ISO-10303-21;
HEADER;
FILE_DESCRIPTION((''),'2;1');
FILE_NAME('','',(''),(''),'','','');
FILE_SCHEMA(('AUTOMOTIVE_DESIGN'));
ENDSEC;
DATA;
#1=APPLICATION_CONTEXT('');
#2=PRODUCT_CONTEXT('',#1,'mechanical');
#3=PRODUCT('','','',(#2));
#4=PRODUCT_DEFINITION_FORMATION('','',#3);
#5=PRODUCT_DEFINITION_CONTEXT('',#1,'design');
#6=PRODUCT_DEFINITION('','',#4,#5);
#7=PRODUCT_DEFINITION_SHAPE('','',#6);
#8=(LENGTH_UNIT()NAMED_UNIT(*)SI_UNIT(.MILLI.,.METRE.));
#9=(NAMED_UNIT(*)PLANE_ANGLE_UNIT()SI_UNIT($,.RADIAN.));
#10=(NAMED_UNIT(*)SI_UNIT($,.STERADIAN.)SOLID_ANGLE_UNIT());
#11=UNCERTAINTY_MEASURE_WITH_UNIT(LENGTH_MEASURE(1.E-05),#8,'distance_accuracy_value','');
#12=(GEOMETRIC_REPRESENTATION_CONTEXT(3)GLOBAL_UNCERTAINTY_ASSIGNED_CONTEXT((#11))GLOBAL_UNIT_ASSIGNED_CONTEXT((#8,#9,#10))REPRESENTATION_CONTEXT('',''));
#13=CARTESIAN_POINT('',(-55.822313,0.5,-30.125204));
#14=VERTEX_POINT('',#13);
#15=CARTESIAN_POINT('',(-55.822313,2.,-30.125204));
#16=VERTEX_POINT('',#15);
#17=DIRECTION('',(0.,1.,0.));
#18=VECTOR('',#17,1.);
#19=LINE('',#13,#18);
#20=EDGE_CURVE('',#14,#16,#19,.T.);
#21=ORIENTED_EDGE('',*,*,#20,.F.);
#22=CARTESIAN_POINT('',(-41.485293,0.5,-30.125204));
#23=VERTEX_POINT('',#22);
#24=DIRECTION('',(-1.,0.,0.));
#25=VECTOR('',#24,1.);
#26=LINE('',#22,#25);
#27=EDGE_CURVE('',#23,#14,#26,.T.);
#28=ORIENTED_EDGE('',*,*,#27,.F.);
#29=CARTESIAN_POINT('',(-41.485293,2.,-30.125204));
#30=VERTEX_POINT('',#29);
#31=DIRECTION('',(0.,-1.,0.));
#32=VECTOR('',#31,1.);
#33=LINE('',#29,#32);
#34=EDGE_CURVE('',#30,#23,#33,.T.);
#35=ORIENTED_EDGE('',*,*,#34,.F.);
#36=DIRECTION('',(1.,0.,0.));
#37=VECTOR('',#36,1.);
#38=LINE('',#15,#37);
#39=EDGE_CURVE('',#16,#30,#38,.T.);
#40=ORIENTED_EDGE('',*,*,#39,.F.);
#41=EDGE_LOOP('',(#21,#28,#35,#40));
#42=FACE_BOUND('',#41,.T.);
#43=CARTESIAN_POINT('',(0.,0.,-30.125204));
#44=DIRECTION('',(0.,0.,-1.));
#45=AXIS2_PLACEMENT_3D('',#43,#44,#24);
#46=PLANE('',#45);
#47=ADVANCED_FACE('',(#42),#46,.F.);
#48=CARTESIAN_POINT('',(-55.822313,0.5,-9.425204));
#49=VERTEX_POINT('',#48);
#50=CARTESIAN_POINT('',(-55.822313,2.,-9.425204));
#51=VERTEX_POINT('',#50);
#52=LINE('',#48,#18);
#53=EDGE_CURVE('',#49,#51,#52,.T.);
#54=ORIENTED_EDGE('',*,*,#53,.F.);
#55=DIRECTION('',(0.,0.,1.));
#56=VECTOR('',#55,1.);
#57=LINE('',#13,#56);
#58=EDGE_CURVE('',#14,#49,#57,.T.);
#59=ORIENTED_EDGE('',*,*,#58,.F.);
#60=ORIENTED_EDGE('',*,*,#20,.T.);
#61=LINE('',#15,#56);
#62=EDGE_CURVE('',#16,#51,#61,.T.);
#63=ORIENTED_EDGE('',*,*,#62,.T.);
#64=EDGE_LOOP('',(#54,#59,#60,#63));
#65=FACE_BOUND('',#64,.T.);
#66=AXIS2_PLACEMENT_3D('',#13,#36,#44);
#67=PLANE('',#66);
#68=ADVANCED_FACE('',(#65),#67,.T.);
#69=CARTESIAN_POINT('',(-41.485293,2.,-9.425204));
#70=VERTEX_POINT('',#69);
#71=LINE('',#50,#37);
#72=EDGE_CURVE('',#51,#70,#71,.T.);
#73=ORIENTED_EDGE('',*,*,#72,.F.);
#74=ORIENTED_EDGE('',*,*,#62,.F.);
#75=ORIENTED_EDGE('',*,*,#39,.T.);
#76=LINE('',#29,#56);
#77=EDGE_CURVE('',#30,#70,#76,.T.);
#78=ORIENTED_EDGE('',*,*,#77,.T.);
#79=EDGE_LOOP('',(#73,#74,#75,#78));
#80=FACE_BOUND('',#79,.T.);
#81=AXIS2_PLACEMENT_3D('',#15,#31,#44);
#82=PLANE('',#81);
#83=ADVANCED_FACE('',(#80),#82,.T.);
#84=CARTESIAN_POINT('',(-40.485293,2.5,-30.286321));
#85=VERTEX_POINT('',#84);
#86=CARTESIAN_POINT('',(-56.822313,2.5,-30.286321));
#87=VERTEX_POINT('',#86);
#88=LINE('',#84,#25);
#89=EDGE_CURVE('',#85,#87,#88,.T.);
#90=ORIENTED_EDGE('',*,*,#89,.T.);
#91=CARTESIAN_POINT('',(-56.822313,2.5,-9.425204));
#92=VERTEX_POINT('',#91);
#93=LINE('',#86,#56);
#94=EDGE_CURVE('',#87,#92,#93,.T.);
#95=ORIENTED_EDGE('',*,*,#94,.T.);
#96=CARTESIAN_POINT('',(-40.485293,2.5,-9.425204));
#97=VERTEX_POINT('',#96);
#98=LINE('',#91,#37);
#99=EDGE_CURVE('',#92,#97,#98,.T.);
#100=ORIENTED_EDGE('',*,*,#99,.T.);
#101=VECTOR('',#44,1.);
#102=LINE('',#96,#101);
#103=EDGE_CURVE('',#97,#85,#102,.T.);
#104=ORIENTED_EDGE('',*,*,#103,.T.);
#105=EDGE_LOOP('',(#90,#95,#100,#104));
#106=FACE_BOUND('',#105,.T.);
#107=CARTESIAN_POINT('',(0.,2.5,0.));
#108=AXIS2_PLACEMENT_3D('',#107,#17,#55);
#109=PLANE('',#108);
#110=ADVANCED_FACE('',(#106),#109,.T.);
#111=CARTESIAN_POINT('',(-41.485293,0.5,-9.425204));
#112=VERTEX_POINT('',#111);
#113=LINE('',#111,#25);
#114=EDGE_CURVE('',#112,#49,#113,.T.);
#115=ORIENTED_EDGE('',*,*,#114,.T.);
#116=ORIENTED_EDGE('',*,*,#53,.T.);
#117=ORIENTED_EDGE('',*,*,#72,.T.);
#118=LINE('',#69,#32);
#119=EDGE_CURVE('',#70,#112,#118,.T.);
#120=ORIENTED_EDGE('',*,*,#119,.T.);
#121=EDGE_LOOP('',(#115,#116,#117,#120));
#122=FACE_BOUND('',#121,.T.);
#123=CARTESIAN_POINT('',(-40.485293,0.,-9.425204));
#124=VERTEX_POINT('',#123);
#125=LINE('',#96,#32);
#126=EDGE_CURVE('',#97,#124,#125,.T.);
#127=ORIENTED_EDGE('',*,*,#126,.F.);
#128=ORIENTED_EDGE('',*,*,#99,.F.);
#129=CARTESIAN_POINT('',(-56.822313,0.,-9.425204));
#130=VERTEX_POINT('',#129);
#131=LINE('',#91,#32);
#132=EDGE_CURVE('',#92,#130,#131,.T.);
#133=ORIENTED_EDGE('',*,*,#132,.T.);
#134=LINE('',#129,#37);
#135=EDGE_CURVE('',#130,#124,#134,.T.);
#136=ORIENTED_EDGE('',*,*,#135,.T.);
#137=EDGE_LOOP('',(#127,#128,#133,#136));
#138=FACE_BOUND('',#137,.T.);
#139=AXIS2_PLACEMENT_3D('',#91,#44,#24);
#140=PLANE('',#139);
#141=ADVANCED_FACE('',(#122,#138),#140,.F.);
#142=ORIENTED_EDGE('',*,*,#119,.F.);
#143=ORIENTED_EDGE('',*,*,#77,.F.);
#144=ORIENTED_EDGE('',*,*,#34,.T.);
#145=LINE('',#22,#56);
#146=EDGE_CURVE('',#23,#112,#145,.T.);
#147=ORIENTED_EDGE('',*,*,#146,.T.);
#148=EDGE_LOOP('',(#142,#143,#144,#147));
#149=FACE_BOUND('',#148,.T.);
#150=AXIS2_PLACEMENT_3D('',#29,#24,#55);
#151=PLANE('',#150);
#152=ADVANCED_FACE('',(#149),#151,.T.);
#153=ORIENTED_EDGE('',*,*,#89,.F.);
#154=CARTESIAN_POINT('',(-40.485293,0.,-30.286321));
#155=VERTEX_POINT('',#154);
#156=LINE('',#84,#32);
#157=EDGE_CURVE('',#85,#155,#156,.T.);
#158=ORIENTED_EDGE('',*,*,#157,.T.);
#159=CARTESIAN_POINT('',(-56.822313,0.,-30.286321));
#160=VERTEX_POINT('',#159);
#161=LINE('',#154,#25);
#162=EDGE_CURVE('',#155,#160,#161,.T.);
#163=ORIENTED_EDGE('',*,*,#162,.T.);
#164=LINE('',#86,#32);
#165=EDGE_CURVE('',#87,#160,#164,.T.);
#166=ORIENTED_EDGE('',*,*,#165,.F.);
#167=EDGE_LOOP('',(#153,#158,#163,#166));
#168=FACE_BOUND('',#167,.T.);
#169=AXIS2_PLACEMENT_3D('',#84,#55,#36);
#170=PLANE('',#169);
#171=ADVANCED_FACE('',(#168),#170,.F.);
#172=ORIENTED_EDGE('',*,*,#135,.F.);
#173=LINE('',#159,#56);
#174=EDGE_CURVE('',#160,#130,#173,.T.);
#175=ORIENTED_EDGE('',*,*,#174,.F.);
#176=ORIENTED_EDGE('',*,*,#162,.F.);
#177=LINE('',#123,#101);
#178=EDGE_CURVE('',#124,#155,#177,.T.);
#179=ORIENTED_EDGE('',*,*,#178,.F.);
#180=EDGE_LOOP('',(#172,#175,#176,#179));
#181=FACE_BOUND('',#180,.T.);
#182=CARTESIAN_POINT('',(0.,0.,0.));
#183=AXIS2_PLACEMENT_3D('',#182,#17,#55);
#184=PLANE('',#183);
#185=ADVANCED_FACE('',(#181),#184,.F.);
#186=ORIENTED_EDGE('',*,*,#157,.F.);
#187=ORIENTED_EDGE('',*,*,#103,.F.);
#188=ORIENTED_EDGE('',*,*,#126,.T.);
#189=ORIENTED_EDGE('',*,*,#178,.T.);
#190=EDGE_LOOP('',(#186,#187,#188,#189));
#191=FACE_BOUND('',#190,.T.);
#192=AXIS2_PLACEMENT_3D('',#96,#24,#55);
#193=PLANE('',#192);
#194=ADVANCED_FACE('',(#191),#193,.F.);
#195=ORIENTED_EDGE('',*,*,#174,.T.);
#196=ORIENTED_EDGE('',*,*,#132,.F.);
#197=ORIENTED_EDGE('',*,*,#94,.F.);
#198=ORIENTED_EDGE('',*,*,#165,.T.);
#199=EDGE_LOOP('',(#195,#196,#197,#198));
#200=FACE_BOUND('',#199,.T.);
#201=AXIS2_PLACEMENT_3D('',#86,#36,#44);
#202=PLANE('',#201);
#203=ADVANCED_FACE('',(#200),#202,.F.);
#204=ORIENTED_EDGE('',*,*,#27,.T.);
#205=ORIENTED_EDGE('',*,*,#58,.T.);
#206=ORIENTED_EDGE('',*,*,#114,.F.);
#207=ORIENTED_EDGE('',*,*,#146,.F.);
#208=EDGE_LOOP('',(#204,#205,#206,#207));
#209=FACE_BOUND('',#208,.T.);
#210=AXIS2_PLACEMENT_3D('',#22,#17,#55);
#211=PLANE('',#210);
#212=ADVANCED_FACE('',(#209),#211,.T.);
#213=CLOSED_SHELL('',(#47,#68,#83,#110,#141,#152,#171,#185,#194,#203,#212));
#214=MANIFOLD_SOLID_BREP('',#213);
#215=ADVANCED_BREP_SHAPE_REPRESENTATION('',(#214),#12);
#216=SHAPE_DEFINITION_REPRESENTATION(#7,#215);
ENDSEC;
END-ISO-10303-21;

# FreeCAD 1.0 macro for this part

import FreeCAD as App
import Part
import Sketcher
from FreeCAD import Vector
Q = App.Units.Quantity


def add_polygon(sketch, points):
    """Adds a closed chain of lines whose ends are joined by coincident constraints."""
    first, n = sketch.GeometryCount, len(points)
    for a, b in zip(points, points[1:] + points[:1]):
        sketch.addGeometry(Part.LineSegment(App.Vector(*a, 0), App.Vector(*b, 0)), False)
    for i in range(n):
        sketch.addConstraint(Sketcher.Constraint("Coincident", first + i, 2, first + (i + 1) % n, 1))

doc = App.newDocument("Part")
body = doc.addObject("PartDesign::Body", "Body")

# Sketch on XZ plane
sketch1 = doc.addObject("Sketcher::SketchObject", "Sketch")
body.addObject(sketch1)
sketch1.AttachmentSupport = (doc.XZ_Plane, [""])
sketch1.MapMode = "FlatFace"
add_polygon(sketch1, [(-57, -30), (-57, -9), (-40, -9), (-40, -30)])  # lines 0-3
sketch1.addConstraint(Sketcher.Constraint("Vertical", 0))
sketch1.addConstraint(Sketcher.Constraint("Horizontal", 1))
sketch1.addConstraint(Sketcher.Constraint("Vertical", 2))
sketch1.addConstraint(Sketcher.Constraint("Horizontal", 3))
sketch1.addConstraint(Sketcher.Constraint("DistanceX", 1, 1, 1, 2, Q("16.33702 mm")))
sketch1.addConstraint(Sketcher.Constraint("DistanceY", 0, 1, 0, 2, Q("20.861118 mm")))
sketch1.addConstraint(Sketcher.Constraint("DistanceY", 2, 2, -1, 1, Q("30.286321 mm")))
sketch1.addConstraint(Sketcher.Constraint("DistanceX", 0, 2, -1, 1, Q("56.822313 mm")))
pad1 = doc.addObject("PartDesign::Pad", "Pad")
body.addObject(pad1)
pad1.Profile = sketch1
pad1.Length = 2.5
pad1.Reversed = True

# Sketch on XY plane
sketch2 = doc.addObject("Sketcher::SketchObject", "Sketch001")
body.addObject(sketch2)
sketch2.AttachmentSupport = (doc.XY_Plane, [""])
sketch2.MapMode = "FlatFace"
sketch2.AttachmentOffset = App.Placement(Vector(0, 0, -9.425204), App.Rotation())
add_polygon(sketch2, [(-55.8, 2), (-55.8, 0.5), (-41.5, 0.5), (-41.5, 2)])  # lines 0-3
sketch2.addConstraint(Sketcher.Constraint("Vertical", 0))
sketch2.addConstraint(Sketcher.Constraint("Horizontal", 1))
sketch2.addConstraint(Sketcher.Constraint("Vertical", 2))
sketch2.addConstraint(Sketcher.Constraint("Horizontal", 3))
sketch2.addConstraint(Sketcher.Constraint("DistanceY", 0, 2, 0, 1, Q("1.5 mm")))
sketch2.addConstraint(Sketcher.Constraint("DistanceY", -1, 1, 2, 2, Q("2 mm")))
sketch2.addConstraint(Sketcher.Constraint("DistanceX", 1, 1, 1, 2, Q("14.33702 mm")))
sketch2.addConstraint(Sketcher.Constraint("DistanceX", 0, 2, -1, 1, Q("55.822313 mm")))
pocket1 = doc.addObject("PartDesign::Pocket", "Pocket")
body.addObject(pocket1)
pocket1.Profile = sketch2
pocket1.Length = 20.7

doc.recompute()
